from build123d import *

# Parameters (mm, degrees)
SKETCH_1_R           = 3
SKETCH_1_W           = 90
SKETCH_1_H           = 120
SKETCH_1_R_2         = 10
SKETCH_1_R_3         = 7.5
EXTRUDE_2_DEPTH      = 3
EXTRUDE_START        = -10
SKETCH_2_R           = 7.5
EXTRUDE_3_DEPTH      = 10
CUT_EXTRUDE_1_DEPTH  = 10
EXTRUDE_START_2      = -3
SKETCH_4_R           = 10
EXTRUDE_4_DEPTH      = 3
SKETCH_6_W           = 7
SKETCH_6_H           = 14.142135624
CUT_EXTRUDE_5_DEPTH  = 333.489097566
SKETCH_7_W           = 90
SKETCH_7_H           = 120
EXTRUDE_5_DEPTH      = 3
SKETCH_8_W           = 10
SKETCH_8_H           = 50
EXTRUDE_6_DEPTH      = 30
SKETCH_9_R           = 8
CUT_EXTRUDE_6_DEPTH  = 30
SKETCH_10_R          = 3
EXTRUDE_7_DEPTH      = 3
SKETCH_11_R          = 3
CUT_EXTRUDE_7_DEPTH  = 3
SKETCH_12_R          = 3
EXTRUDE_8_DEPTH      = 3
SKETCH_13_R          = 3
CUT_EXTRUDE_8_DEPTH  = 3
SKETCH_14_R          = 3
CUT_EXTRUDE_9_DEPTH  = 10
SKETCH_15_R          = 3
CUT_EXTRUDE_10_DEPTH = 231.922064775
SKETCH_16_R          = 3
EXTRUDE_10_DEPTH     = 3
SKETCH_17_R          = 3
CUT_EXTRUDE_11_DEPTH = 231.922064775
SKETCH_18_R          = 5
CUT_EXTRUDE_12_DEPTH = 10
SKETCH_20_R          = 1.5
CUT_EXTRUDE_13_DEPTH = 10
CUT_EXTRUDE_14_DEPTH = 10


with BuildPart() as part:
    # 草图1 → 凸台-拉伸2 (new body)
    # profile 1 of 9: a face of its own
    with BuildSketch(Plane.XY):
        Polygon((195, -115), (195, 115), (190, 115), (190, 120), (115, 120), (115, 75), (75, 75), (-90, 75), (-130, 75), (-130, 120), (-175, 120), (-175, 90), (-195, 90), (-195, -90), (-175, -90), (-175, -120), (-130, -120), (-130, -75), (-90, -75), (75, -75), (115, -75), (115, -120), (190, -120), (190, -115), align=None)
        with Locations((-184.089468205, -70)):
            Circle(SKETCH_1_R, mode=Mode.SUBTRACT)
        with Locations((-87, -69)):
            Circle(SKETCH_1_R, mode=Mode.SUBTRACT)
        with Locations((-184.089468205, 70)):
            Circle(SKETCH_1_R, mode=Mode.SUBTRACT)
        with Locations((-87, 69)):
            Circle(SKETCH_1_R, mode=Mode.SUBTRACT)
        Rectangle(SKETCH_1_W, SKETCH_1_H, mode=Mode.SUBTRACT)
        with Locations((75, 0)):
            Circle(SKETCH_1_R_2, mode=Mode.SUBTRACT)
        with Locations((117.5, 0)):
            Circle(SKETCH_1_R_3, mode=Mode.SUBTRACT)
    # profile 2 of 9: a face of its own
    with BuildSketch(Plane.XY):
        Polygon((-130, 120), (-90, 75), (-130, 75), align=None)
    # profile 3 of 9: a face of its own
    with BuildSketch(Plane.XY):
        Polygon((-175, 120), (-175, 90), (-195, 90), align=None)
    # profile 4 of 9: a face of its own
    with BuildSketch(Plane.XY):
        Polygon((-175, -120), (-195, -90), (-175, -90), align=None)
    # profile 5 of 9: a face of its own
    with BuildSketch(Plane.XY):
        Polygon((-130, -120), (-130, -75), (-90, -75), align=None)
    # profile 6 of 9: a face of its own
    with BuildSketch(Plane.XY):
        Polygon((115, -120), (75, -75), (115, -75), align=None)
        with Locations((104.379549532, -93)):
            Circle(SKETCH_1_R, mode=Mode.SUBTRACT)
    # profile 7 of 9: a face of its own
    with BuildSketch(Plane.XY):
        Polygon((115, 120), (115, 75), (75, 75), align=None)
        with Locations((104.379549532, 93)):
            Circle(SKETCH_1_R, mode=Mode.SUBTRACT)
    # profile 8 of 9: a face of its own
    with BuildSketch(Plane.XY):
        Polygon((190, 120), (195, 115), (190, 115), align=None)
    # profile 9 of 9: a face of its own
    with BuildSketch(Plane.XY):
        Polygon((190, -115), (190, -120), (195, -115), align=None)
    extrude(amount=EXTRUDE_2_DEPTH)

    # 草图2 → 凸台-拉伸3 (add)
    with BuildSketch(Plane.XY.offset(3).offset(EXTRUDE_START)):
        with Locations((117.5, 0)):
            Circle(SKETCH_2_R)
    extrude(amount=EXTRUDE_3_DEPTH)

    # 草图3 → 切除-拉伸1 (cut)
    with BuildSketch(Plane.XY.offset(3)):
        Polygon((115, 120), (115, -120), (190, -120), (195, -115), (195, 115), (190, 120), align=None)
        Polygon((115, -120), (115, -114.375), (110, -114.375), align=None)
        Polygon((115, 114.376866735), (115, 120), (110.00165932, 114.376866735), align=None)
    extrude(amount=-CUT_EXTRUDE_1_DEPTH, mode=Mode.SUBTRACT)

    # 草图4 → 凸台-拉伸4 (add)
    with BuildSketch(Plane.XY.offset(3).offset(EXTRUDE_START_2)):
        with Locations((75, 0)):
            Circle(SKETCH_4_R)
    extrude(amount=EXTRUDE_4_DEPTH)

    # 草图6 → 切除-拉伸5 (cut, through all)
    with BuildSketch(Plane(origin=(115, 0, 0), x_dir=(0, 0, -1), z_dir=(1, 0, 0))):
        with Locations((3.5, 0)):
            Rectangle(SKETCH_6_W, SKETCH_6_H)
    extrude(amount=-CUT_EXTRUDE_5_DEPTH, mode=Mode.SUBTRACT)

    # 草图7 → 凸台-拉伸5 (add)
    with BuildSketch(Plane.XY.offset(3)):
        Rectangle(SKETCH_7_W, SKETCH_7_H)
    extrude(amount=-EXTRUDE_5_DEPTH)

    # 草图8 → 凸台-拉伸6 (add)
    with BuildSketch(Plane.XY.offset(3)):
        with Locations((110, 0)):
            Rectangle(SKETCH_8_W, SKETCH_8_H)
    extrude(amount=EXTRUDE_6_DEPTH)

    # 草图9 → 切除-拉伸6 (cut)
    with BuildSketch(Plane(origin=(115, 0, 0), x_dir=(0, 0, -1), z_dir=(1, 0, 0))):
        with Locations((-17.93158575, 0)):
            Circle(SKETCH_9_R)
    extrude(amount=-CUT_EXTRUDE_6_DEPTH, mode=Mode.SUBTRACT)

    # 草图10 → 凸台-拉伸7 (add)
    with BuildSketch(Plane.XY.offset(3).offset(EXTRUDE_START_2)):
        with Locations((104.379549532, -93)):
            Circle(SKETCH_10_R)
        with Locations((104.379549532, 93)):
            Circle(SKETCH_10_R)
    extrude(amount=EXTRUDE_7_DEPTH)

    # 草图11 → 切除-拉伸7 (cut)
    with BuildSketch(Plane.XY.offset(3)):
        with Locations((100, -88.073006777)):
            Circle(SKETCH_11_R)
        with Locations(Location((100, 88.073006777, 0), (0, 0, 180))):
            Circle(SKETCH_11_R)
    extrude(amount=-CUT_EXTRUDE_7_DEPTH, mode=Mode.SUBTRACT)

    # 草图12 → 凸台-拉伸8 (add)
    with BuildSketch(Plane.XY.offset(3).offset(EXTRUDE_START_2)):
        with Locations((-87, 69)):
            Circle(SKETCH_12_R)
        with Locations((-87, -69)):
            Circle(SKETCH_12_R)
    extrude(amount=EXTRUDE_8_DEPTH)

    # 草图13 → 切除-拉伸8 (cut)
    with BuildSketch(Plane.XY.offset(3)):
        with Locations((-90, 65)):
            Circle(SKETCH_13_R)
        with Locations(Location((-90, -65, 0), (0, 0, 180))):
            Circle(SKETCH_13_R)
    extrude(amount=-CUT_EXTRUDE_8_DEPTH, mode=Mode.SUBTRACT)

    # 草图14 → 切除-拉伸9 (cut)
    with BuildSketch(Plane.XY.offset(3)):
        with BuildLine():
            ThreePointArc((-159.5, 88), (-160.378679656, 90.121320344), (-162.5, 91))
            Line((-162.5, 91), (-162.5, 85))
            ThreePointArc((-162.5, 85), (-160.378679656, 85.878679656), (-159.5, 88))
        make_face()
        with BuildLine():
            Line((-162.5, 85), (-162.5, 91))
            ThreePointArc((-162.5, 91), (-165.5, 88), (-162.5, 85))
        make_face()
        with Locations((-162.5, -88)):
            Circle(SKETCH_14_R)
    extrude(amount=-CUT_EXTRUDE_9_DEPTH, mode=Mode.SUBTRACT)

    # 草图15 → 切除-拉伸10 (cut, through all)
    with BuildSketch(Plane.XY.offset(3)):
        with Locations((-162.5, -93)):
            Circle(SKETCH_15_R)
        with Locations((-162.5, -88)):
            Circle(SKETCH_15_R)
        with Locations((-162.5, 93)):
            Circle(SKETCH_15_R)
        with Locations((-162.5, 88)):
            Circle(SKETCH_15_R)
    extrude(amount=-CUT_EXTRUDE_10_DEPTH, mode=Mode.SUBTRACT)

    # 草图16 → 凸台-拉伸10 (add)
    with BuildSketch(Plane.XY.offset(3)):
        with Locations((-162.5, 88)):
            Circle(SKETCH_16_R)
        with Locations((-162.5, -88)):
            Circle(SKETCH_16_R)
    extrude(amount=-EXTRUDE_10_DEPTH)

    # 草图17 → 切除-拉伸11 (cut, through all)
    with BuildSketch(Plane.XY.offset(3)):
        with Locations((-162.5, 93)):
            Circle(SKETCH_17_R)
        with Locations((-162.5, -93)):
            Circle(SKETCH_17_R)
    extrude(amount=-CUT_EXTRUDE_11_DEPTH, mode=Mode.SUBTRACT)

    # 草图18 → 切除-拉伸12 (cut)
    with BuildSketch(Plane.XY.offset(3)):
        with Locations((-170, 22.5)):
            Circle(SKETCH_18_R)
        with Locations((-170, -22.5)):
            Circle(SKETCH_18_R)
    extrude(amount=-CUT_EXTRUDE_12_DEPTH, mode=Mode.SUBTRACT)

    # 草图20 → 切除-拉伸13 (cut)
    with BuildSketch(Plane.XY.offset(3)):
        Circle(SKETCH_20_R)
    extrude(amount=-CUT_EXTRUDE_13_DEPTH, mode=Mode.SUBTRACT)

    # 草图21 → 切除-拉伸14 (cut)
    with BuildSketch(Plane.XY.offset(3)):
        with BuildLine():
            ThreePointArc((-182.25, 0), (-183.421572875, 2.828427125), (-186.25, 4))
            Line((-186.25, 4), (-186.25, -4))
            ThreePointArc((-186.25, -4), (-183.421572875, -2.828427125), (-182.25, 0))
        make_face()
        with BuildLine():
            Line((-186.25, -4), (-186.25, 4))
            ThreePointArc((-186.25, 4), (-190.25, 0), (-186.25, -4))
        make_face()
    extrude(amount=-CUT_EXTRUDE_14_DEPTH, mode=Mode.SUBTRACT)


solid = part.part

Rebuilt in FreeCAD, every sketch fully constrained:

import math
import FreeCAD as App
import Part
import Sketcher

V = App.Vector

doc = App.newDocument("Part")
body = doc.addObject("PartDesign::Body", "Body")

sketch1 = doc.addObject("Sketcher::SketchObject", "Sketch")
body.addObject(sketch1)
sketch1.AttachmentSupport = (doc.XY_Plane, [""])
sketch1.MapMode = "FlatFace"
sketch1.addGeometry([
    Part.LineSegment(V(195, -115, 0), V(195, 115, 0)),
    Part.LineSegment(V(195, 115, 0), V(190, 120, 0)),
    Part.LineSegment(V(190, 120, 0), V(115, 120, 0)),
    Part.LineSegment(V(115, 120, 0), V(75, 75, 0)),
    Part.LineSegment(V(75, 75, 0), V(-90, 75, 0)),
    Part.LineSegment(V(-90, 75, 0), V(-130, 120, 0)),
    Part.LineSegment(V(-130, 120, 0), V(-175, 120, 0)),
    Part.LineSegment(V(-175, 120, 0), V(-195, 90, 0)),
    Part.LineSegment(V(-195, 90, 0), V(-195, -90, 0)),
    Part.LineSegment(V(-195, -90, 0), V(-175, -120, 0)),
    Part.LineSegment(V(-175, -120, 0), V(-130, -120, 0)),
    Part.LineSegment(V(-130, -120, 0), V(-90, -75, 0)),
    Part.LineSegment(V(-90, -75, 0), V(75, -75, 0)),
    Part.LineSegment(V(75, -75, 0), V(115, -120, 0)),
    Part.LineSegment(V(115, -120, 0), V(190, -120, 0)),
    Part.LineSegment(V(190, -120, 0), V(195, -115, 0)),
    Part.Circle(V(-184.1, -70, 0), V(0, 0, 1), 3),
    Part.Circle(V(-87, -69, 0), V(0, 0, 1), 3),
    Part.Circle(V(-184.1, 70, 0), V(0, 0, 1), 3),
    Part.Circle(V(-87, 69, 0), V(0, 0, 1), 3),
    Part.LineSegment(V(45, -60, 0), V(-45, -60, 0)),
    Part.LineSegment(V(-45, -60, 0), V(-45, 60, 0)),
    Part.LineSegment(V(-45, 60, 0), V(45, 60, 0)),
    Part.LineSegment(V(45, 60, 0), V(45, -60, 0)),
    Part.Circle(V(75, 0, 0), V(0, 0, 1), 10),
    Part.Circle(V(117.5, 0, 0), V(0, 0, 1), 7.5),
    Part.Circle(V(104.4, -93, 0), V(0, 0, 1), 3),
    Part.Circle(V(104.4, 93, 0), V(0, 0, 1), 3),
], False)
sketch1.addConstraint([
    Sketcher.Constraint("Coincident", 0, 2, 1, 1),
    Sketcher.Constraint("Coincident", 1, 2, 2, 1),
    Sketcher.Constraint("Coincident", 2, 2, 3, 1),
    Sketcher.Constraint("Coincident", 3, 2, 4, 1),
    Sketcher.Constraint("Coincident", 4, 2, 5, 1),
    Sketcher.Constraint("Coincident", 5, 2, 6, 1),
    Sketcher.Constraint("Coincident", 6, 2, 7, 1),
    Sketcher.Constraint("Coincident", 7, 2, 8, 1),
    Sketcher.Constraint("Coincident", 8, 2, 9, 1),
    Sketcher.Constraint("Coincident", 9, 2, 10, 1),
    Sketcher.Constraint("Coincident", 10, 2, 11, 1),
    Sketcher.Constraint("Coincident", 11, 2, 12, 1),
    Sketcher.Constraint("Coincident", 12, 2, 13, 1),
    Sketcher.Constraint("Coincident", 13, 2, 14, 1),
    Sketcher.Constraint("Coincident", 14, 2, 15, 1),
    Sketcher.Constraint("Coincident", 15, 2, 0, 1),
    Sketcher.Constraint("Coincident", 20, 2, 21, 1),
    Sketcher.Constraint("Coincident", 21, 2, 22, 1),
    Sketcher.Constraint("Coincident", 22, 2, 23, 1),
    Sketcher.Constraint("Coincident", 23, 2, 20, 1),
    Sketcher.Constraint("Vertical", 0),
    Sketcher.Constraint("Horizontal", 2),
    Sketcher.Constraint("Horizontal", 4),
    Sketcher.Constraint("Horizontal", 6),
    Sketcher.Constraint("Vertical", 8),
    Sketcher.Constraint("Horizontal", 10),
    Sketcher.Constraint("Horizontal", 12),
    Sketcher.Constraint("Horizontal", 14),
    Sketcher.Constraint("Horizontal", 20),
    Sketcher.Constraint("Vertical", 21),
    Sketcher.Constraint("Horizontal", 22),
    Sketcher.Constraint("Vertical", 23),
    Sketcher.Constraint("Equal", 16, 17),
    Sketcher.Constraint("Equal", 17, 18),
    Sketcher.Constraint("Equal", 18, 19),
    Sketcher.Constraint("Equal", 19, 26),
    Sketcher.Constraint("Equal", 26, 27),
    Sketcher.Constraint("Symmetric", 20, 2, 22, 2, -1, 1),
    Sketcher.Constraint("Symmetric", 16, 3, 18, 3, -1),
    Sketcher.Constraint("Symmetric", 17, 3, 19, 3, -1),
    Sketcher.Constraint("Symmetric", 26, 3, 27, 3, -1),
    Sketcher.Constraint("Symmetric", 6, 2, 9, 2, -1),
    Sketcher.Constraint("Symmetric", 4, 2, 11, 2, -1),
    Sketcher.Constraint("Symmetric", 2, 2, 13, 2, -1),
    Sketcher.Constraint("PointOnObject", 24, 3, -1),
    Sketcher.Constraint("PointOnObject", 25, 3, -1),
    Sketcher.Constraint("Parallel", 3, 11),
    Sketcher.Constraint("Parallel", 5, 13),
    Sketcher.Constraint("Perpendicular", 1, 15),
    Sketcher.Constraint("Horizontal", 2, 2, 5, 2),
    Sketcher.Constraint("Vertical", 24, 3, 3, 2),
    Sketcher.Constraint("Vertical", 5, 2, 10, 2),
    Sketcher.Constraint("Vertical", 1, 2, 14, 2),
    Sketcher.Constraint("Equal", 7, 9),
    Sketcher.Constraint("Equal", 1, 15),
    Sketcher.Constraint("Diameter", 16, 6.0),
    Sketcher.Constraint("Diameter", 24, 20.0),
    Sketcher.Constraint("Diameter", 25, 15.0),
    Sketcher.Constraint("DistanceX", 2, 2, 2, 1, 75.0),
    Sketcher.Constraint("DistanceX", 4, 2, 4, 1, 165.0),
    Sketcher.Constraint("DistanceX", 6, 2, 6, 1, 45.0),
    Sketcher.Constraint("DistanceX", 20, 2, 20, 1, 90.0),
    Sketcher.Constraint("DistanceY", 0, 1, 0, 2, 230.0),
    Sketcher.Constraint("DistanceY", 8, 2, 8, 1, 180.0),
    Sketcher.Constraint("DistanceY", 21, 1, 21, 2, 120.0),
    Sketcher.Constraint("DistanceY", 16, 3, -1, 1, 70.0),
    Sketcher.Constraint("DistanceX", 17, 3, -1, 1, 87.0),
    Sketcher.Constraint("DistanceY", 17, 3, -1, 1, 69.0),
    Sketcher.Constraint("DistanceX", -1, 1, 24, 3, 75.0),
    Sketcher.Constraint("DistanceY", 26, 3, -1, 1, 93.0),
    Sketcher.Constraint("DistanceX", -1, 1, 0, 2, 195.0),
    Sketcher.Constraint("DistanceX", -1, 1, 1, 2, 190.0),
    Sketcher.Constraint("DistanceY", -1, 1, 3, 2, 75.0),
    Sketcher.Constraint("DistanceX", 7, 2, -1, 1, 195.0),
    Sketcher.Constraint("DistanceX", -1, 1, 25, 3, 117.5),
    Sketcher.Constraint("DistanceX", 16, 3, -1, 1, 184.089468),
    Sketcher.Constraint("DistanceX", -1, 1, 26, 3, 104.37955),
])
pad1 = doc.addObject("PartDesign::Pad", "Pad")
body.addObject(pad1)
pad1.Profile = sketch1
pad1.Length = 3

sketch2 = doc.addObject("Sketcher::SketchObject", "Sketch001")
body.addObject(sketch2)
sketch2.AttachmentSupport = (doc.XY_Plane, [""])
sketch2.MapMode = "FlatFace"
sketch2.AttachmentOffset = App.Placement(V(0, 0, -7), App.Rotation())
sketch2.addGeometry(Part.Circle(V(118, 0, 0), V(0, 0, 1), 8), False)
sketch2.addConstraint([
    Sketcher.Constraint("PointOnObject", 0, 3, -1),
    Sketcher.Constraint("Diameter", 0, 15.0),
    Sketcher.Constraint("DistanceX", -1, 1, 0, 3, 117.5),
])
pad2 = doc.addObject("PartDesign::Pad", "Pad001")
body.addObject(pad2)
pad2.Profile = sketch2
pad2.Length = 10

sketch3 = doc.addObject("Sketcher::SketchObject", "Sketch002")
body.addObject(sketch3)
sketch3.AttachmentSupport = (doc.XY_Plane, [""])
sketch3.MapMode = "FlatFace"
sketch3.AttachmentOffset = App.Placement(V(0, 0, 3), App.Rotation())
sketch3.addGeometry([
    Part.LineSegment(V(115, 114.4, 0), V(115, -114.4, 0)),
    Part.LineSegment(V(115, -114.4, 0), V(110, -114.4, 0)),
    Part.LineSegment(V(110, -114.4, 0), V(115, -120, 0)),
    Part.LineSegment(V(115, -120, 0), V(190, -120, 0)),
    Part.LineSegment(V(190, -120, 0), V(195, -115, 0)),
    Part.LineSegment(V(195, -115, 0), V(195, 115, 0)),
    Part.LineSegment(V(195, 115, 0), V(190, 120, 0)),
    Part.LineSegment(V(190, 120, 0), V(115, 120, 0)),
    Part.LineSegment(V(115, 120, 0), V(110, 114.4, 0)),
    Part.LineSegment(V(110, 114.4, 0), V(115, 114.4, 0)),
], False)
sketch3.addConstraint([
    Sketcher.Constraint("Coincident", 0, 2, 1, 1),
    Sketcher.Constraint("Coincident", 1, 2, 2, 1),
    Sketcher.Constraint("Coincident", 2, 2, 3, 1),
    Sketcher.Constraint("Coincident", 3, 2, 4, 1),
    Sketcher.Constraint("Coincident", 4, 2, 5, 1),
    Sketcher.Constraint("Coincident", 5, 2, 6, 1),
    Sketcher.Constraint("Coincident", 6, 2, 7, 1),
    Sketcher.Constraint("Coincident", 7, 2, 8, 1),
    Sketcher.Constraint("Coincident", 8, 2, 9, 1),
    Sketcher.Constraint("Coincident", 9, 2, 0, 1),
    Sketcher.Constraint("Vertical", 0),
    Sketcher.Constraint("Horizontal", 1),
    Sketcher.Constraint("Horizontal", 3),
    Sketcher.Constraint("Vertical", 5),
    Sketcher.Constraint("Horizontal", 7),
    Sketcher.Constraint("Horizontal", 9),
    Sketcher.Constraint("Symmetric", 3, 2, 6, 2, -1),
    Sketcher.Constraint("Perpendicular", 4, 6),
    Sketcher.Constraint("Vertical", 0, 2, 2, 2),
    Sketcher.Constraint("Vertical", 2, 2, 7, 2),
    Sketcher.Constraint("Equal", 4, 6),
    Sketcher.Constraint("DistanceX", 1, 2, 1, 1, 5.0),
    Sketcher.Constraint("DistanceX", 3, 1, 3, 2, 75.0),
    Sketcher.Constraint("DistanceY", 5, 1, 5, 2, 230.0),
    Sketcher.Constraint("DistanceX", -1, 1, 0, 2, 115.0),
    Sketcher.Constraint("DistanceY", 2, 2, -1, 1, 120.0),
    Sketcher.Constraint("DistanceY", 0, 2, -1, 1, 114.375),
    Sketcher.Constraint("Distance", 8, 7.523499),
    Sketcher.Constraint("DistanceX", 9, 1, 9, 2, 4.998341),
])
pocket1 = doc.addObject("PartDesign::Pocket", "Pocket")
body.addObject(pocket1)
pocket1.Profile = sketch3
pocket1.Length = 10

sketch4 = doc.addObject("Sketcher::SketchObject", "Sketch003")
body.addObject(sketch4)
sketch4.AttachmentSupport = (doc.XY_Plane, [""])
sketch4.MapMode = "FlatFace"
sketch4.addGeometry(Part.Circle(V(75, 0, 0), V(0, 0, 1), 10), False)
sketch4.addConstraint([
    Sketcher.Constraint("PointOnObject", 0, 3, -1),
    Sketcher.Constraint("Diameter", 0, 20.0),
    Sketcher.Constraint("DistanceX", -1, 1, 0, 3, 75.0),
])
pad3 = doc.addObject("PartDesign::Pad", "Pad002")
body.addObject(pad3)
pad3.Profile = sketch4
pad3.Length = 3

sketch5 = doc.addObject("Sketcher::SketchObject", "Sketch004")
body.addObject(sketch5)
sketch5.AttachmentSupport = (doc.YZ_Plane, [""])
sketch5.MapMode = "FlatFace"
sketch5.AttachmentOffset = App.Placement(V(0, 0, 115), App.Rotation())
sketch5.addGeometry([
    Part.LineSegment(V(7, 0, 0), V(-7, 0, 0)),
    Part.LineSegment(V(-7, 0, 0), V(-7, -7, 0)),
    Part.LineSegment(V(-7, -7, 0), V(7, -7, 0)),
    Part.LineSegment(V(7, -7, 0), V(7, 0, 0)),
], False)
sketch5.addConstraint([
    Sketcher.Constraint("Coincident", 0, 2, 1, 1),
    Sketcher.Constraint("Coincident", 1, 2, 2, 1),
    Sketcher.Constraint("Coincident", 2, 2, 3, 1),
    Sketcher.Constraint("Coincident", 3, 2, 0, 1),
    Sketcher.Constraint("Horizontal", 0),
    Sketcher.Constraint("Vertical", 1),
    Sketcher.Constraint("Horizontal", 2),
    Sketcher.Constraint("Vertical", 3),
    Sketcher.Constraint("Symmetric", 0, 2, 3, 2, -1, 1),
    Sketcher.Constraint("DistanceY", 1, 2, 1, 1, 7.0),
    Sketcher.Constraint("DistanceX", 0, 2, 0, 1, 14.142136),
])
pocket2 = doc.addObject("PartDesign::Pocket", "Pocket001")
body.addObject(pocket2)
pocket2.Profile = sketch5
pocket2.Type = "ThroughAll"

sketch6 = doc.addObject("Sketcher::SketchObject", "Sketch005")
body.addObject(sketch6)
sketch6.AttachmentSupport = (doc.XY_Plane, [""])
sketch6.MapMode = "FlatFace"
sketch6.AttachmentOffset = App.Placement(V(0, 0, 3), App.Rotation())
sketch6.addGeometry([
    Part.LineSegment(V(-45, 60, 0), V(-45, -60, 0)),
    Part.LineSegment(V(-45, -60, 0), V(45, -60, 0)),
    Part.LineSegment(V(45, -60, 0), V(45, 60, 0)),
    Part.LineSegment(V(45, 60, 0), V(-45, 60, 0)),
], False)
sketch6.addConstraint([
    Sketcher.Constraint("Coincident", 0, 2, 1, 1),
    Sketcher.Constraint("Coincident", 1, 2, 2, 1),
    Sketcher.Constraint("Coincident", 2, 2, 3, 1),
    Sketcher.Constraint("Coincident", 3, 2, 0, 1),
    Sketcher.Constraint("Vertical", 0),
    Sketcher.Constraint("Horizontal", 1),
    Sketcher.Constraint("Vertical", 2),
    Sketcher.Constraint("Horizontal", 3),
    Sketcher.Constraint("Symmetric", 0, 2, 2, 2, -1, 1),
    Sketcher.Constraint("DistanceX", 1, 1, 1, 2, 90.0),
    Sketcher.Constraint("DistanceY", 0, 2, 0, 1, 120.0),
])
pad4 = doc.addObject("PartDesign::Pad", "Pad003")
body.addObject(pad4)
pad4.Profile = sketch6
pad4.Length = 3
pad4.Reversed = True

sketch7 = doc.addObject("Sketcher::SketchObject", "Sketch006")
body.addObject(sketch7)
sketch7.AttachmentSupport = (doc.XY_Plane, [""])
sketch7.MapMode = "FlatFace"
sketch7.AttachmentOffset = App.Placement(V(0, 0, 3), App.Rotation())
sketch7.addGeometry([
    Part.LineSegment(V(105, 25, 0), V(105, -25, 0)),
    Part.LineSegment(V(105, -25, 0), V(115, -25, 0)),
    Part.LineSegment(V(115, -25, 0), V(115, 25, 0)),
    Part.LineSegment(V(115, 25, 0), V(105, 25, 0)),
], False)
sketch7.addConstraint([
    Sketcher.Constraint("Coincident", 0, 2, 1, 1),
    Sketcher.Constraint("Coincident", 1, 2, 2, 1),
    Sketcher.Constraint("Coincident", 2, 2, 3, 1),
    Sketcher.Constraint("Coincident", 3, 2, 0, 1),
    Sketcher.Constraint("Vertical", 0),
    Sketcher.Constraint("Horizontal", 1),
    Sketcher.Constraint("Vertical", 2),
    Sketcher.Constraint("Horizontal", 3),
    Sketcher.Constraint("DistanceX", 1, 1, 1, 2, 10.0),
    Sketcher.Constraint("DistanceY", 0, 2, 0, 1, 50.0),
    Sketcher.Constraint("DistanceX", -1, 1, 0, 2, 105.0),
    Sketcher.Constraint("DistanceY", 0, 2, -1, 1, 25.0),
])
pad5 = doc.addObject("PartDesign::Pad", "Pad004")
body.addObject(pad5)
pad5.Profile = sketch7
pad5.Length = 30

sketch8 = doc.addObject("Sketcher::SketchObject", "Sketch007")
body.addObject(sketch8)
sketch8.AttachmentSupport = (doc.YZ_Plane, [""])
sketch8.MapMode = "FlatFace"
sketch8.AttachmentOffset = App.Placement(V(0, 0, 115), App.Rotation())
sketch8.addGeometry(Part.Circle(V(0, 18, 0), V(0, 0, 1), 8), False)
sketch8.addConstraint([
    Sketcher.Constraint("PointOnObject", 0, 3, -2),
    Sketcher.Constraint("Diameter", 0, 16.0),
    Sketcher.Constraint("DistanceY", -1, 1, 0, 3, 17.931586),
])
pocket3 = doc.addObject("PartDesign::Pocket", "Pocket002")
body.addObject(pocket3)
pocket3.Profile = sketch8
pocket3.Length = 30

sketch9 = doc.addObject("Sketcher::SketchObject", "Sketch008")
body.addObject(sketch9)
sketch9.AttachmentSupport = (doc.XY_Plane, [""])
sketch9.MapMode = "FlatFace"
sketch9.addGeometry([
    Part.Circle(V(104.4, -93, 0), V(0, 0, 1), 3),
    Part.Circle(V(104.4, 93, 0), V(0, 0, 1), 3),
], False)
sketch9.addConstraint([
    Sketcher.Constraint("Equal", 0, 1),
    Sketcher.Constraint("Symmetric", 0, 3, 1, 3, -1),
    Sketcher.Constraint("Diameter", 0, 6.0),
    Sketcher.Constraint("DistanceY", 0, 3, -1, 1, 93.0),
    Sketcher.Constraint("DistanceX", -1, 1, 0, 3, 104.37955),
])
pad6 = doc.addObject("PartDesign::Pad", "Pad005")
body.addObject(pad6)
pad6.Profile = sketch9
pad6.Length = 3

sketch10 = doc.addObject("Sketcher::SketchObject", "Sketch009")
body.addObject(sketch10)
sketch10.AttachmentSupport = (doc.XY_Plane, [""])
sketch10.MapMode = "FlatFace"
sketch10.AttachmentOffset = App.Placement(V(0, 0, 3), App.Rotation())
sketch10.addGeometry([
    Part.Circle(V(100, -88.1, 0), V(0, 0, 1), 3),
    Part.Circle(V(100, 88.1, 0), V(0, 0, 1), 3),
], False)
sketch10.addConstraint([
    Sketcher.Constraint("Equal", 0, 1),
    Sketcher.Constraint("Symmetric", 0, 3, 1, 3, -1),
    Sketcher.Constraint("Diameter", 0, 6.0),
    Sketcher.Constraint("DistanceX", -1, 1, 0, 3, 100.0),
    Sketcher.Constraint("DistanceY", 0, 3, -1, 1, 88.073007),
])
pocket4 = doc.addObject("PartDesign::Pocket", "Pocket003")
body.addObject(pocket4)
pocket4.Profile = sketch10
pocket4.Length = 3

sketch11 = doc.addObject("Sketcher::SketchObject", "Sketch010")
body.addObject(sketch11)
sketch11.AttachmentSupport = (doc.XY_Plane, [""])
sketch11.MapMode = "FlatFace"
sketch11.addGeometry([
    Part.Circle(V(-87, 69, 0), V(0, 0, 1), 3),
    Part.Circle(V(-87, -69, 0), V(0, 0, 1), 3),
], False)
sketch11.addConstraint([
    Sketcher.Constraint("Equal", 0, 1),
    Sketcher.Constraint("Symmetric", 0, 3, 1, 3, -1),
    Sketcher.Constraint("Diameter", 0, 6.0),
    Sketcher.Constraint("DistanceX", 0, 3, -1, 1, 87.0),
    Sketcher.Constraint("DistanceY", -1, 1, 0, 3, 69.0),
])
pad7 = doc.addObject("PartDesign::Pad", "Pad006")
body.addObject(pad7)
pad7.Profile = sketch11
pad7.Length = 3

sketch12 = doc.addObject("Sketcher::SketchObject", "Sketch011")
body.addObject(sketch12)
sketch12.AttachmentSupport = (doc.XY_Plane, [""])
sketch12.MapMode = "FlatFace"
sketch12.AttachmentOffset = App.Placement(V(0, 0, 3), App.Rotation())
sketch12.addGeometry([
    Part.Circle(V(-90, 65, 0), V(0, 0, 1), 3),
    Part.Circle(V(-90, -65, 0), V(0, 0, 1), 3),
], False)
sketch12.addConstraint([
    Sketcher.Constraint("Equal", 0, 1),
    Sketcher.Constraint("Symmetric", 0, 3, 1, 3, -1),
    Sketcher.Constraint("Diameter", 0, 6.0),
    Sketcher.Constraint("DistanceX", 0, 3, -1, 1, 90.0),
    Sketcher.Constraint("DistanceY", -1, 1, 0, 3, 65.0),
])
pocket5 = doc.addObject("PartDesign::Pocket", "Pocket004")
body.addObject(pocket5)
pocket5.Profile = sketch12
pocket5.Length = 3

sketch13 = doc.addObject("Sketcher::SketchObject", "Sketch012")
body.addObject(sketch13)
sketch13.AttachmentSupport = (doc.XY_Plane, [""])
sketch13.MapMode = "FlatFace"
sketch13.AttachmentOffset = App.Placement(V(0, 0, 3), App.Rotation())
sketch13.addGeometry([
    Part.ArcOfCircle(Part.Circle(V(-162.5, 88, 0), V(0, 0, 1), 3), math.radians(0), math.radians(90)),
    Part.ArcOfCircle(Part.Circle(V(-162.5, 88, 0), V(0, 0, 1), 3), math.radians(90), math.radians(270)),
    Part.ArcOfCircle(Part.Circle(V(-162.5, 88, 0), V(0, 0, 1), 3), math.radians(-90), math.radians(0)),
    Part.Circle(V(-162.5, -88, 0), V(0, 0, 1), 3),
], False)
sketch13.addConstraint([
    Sketcher.Constraint("Tangent", 0, 2, 1, 1),
    Sketcher.Constraint("Tangent", 1, 2, 2, 1),
    Sketcher.Constraint("Tangent", 2, 2, 0, 1),
    Sketcher.Constraint("Equal", 2, 3),
    Sketcher.Constraint("Symmetric", 0, 3, 3, 3, -1),
    Sketcher.Constraint("Horizontal", 1, 3, 2, 2),
    Sketcher.Constraint("Vertical", 3, 3, 0, 2),
    Sketcher.Constraint("Vertical", 0, 2, 1, 2),
    Sketcher.Constraint("Diameter", 3, 6.0),
    Sketcher.Constraint("DistanceY", -1, 1, 0, 3, 88.0),
    Sketcher.Constraint("DistanceX", 0, 3, -1, 1, 162.5),
])
pocket6 = doc.addObject("PartDesign::Pocket", "Pocket005")
body.addObject(pocket6)
pocket6.Profile = sketch13
pocket6.Length = 10

sketch14 = doc.addObject("Sketcher::SketchObject", "Sketch013")
body.addObject(sketch14)
sketch14.AttachmentSupport = (doc.XY_Plane, [""])
sketch14.MapMode = "FlatFace"
sketch14.AttachmentOffset = App.Placement(V(0, 0, 3), App.Rotation())
sketch14.addGeometry([
    Part.ArcOfCircle(Part.Circle(V(-162.5, -93, 0), V(0, 0, 1), 3), math.radians(124), math.radians(416)),
    Part.ArcOfCircle(Part.Circle(V(-162.5, -88, 0), V(0, 0, 1), 3), math.radians(-56), math.radians(236)),
    Part.ArcOfCircle(Part.Circle(V(-162.5, 93, 0), V(0, 0, 1), 3), math.radians(-56), math.radians(236)),
    Part.ArcOfCircle(Part.Circle(V(-162.5, 88, 0), V(0, 0, 1), 3), math.radians(124), math.radians(416)),
], False)
sketch14.addConstraint([
    Sketcher.Constraint("Coincident", 0, 1, 1, 2),
    Sketcher.Constraint("Coincident", 1, 1, 0, 2),
    Sketcher.Constraint("Coincident", 2, 1, 3, 2),
    Sketcher.Constraint("Coincident", 3, 1, 2, 2),
    Sketcher.Constraint("Equal", 0, 1),
    Sketcher.Constraint("Equal", 1, 2),
    Sketcher.Constraint("Equal", 2, 3),
    Sketcher.Constraint("Symmetric", 0, 3, 2, 3, -1),
    Sketcher.Constraint("Symmetric", 1, 3, 3, 3, -1),
    Sketcher.Constraint("Horizontal", 0, 1, 1, 1),
    Sketcher.Constraint("Radius", 0, 3.0),
    Sketcher.Constraint("DistanceY", 0, 3, -1, 1, 93.0),
    Sketcher.Constraint("DistanceY", 1, 3, -1, 1, 88.0),
    Sketcher.Constraint("DistanceX", 0, 3, -1, 1, 162.5),
])
pocket7 = doc.addObject("PartDesign::Pocket", "Pocket006")
body.addObject(pocket7)
pocket7.Profile = sketch14
pocket7.Type = "ThroughAll"

sketch15 = doc.addObject("Sketcher::SketchObject", "Sketch014")
body.addObject(sketch15)
sketch15.AttachmentSupport = (doc.XY_Plane, [""])
sketch15.MapMode = "FlatFace"
sketch15.AttachmentOffset = App.Placement(V(0, 0, 3), App.Rotation())
sketch15.addGeometry([
    Part.Circle(V(-162.5, 88, 0), V(0, 0, 1), 3),
    Part.Circle(V(-162.5, -88, 0), V(0, 0, 1), 3),
], False)
sketch15.addConstraint([
    Sketcher.Constraint("Equal", 0, 1),
    Sketcher.Constraint("Symmetric", 0, 3, 1, 3, -1),
    Sketcher.Constraint("Diameter", 0, 6.0),
    Sketcher.Constraint("DistanceY", -1, 1, 0, 3, 88.0),
    Sketcher.Constraint("DistanceX", 0, 3, -1, 1, 162.5),
])
pad8 = doc.addObject("PartDesign::Pad", "Pad007")
body.addObject(pad8)
pad8.Profile = sketch15
pad8.Length = 3
pad8.Reversed = True

sketch16 = doc.addObject("Sketcher::SketchObject", "Sketch015")
body.addObject(sketch16)
sketch16.AttachmentSupport = (doc.XY_Plane, [""])
sketch16.MapMode = "FlatFace"
sketch16.AttachmentOffset = App.Placement(V(0, 0, 3), App.Rotation())
sketch16.addGeometry([
    Part.Circle(V(-162.5, 93, 0), V(0, 0, 1), 3),
    Part.Circle(V(-162.5, -93, 0), V(0, 0, 1), 3),
], False)
sketch16.addConstraint([
    Sketcher.Constraint("Equal", 0, 1),
    Sketcher.Constraint("Symmetric", 0, 3, 1, 3, -1),
    Sketcher.Constraint("Diameter", 0, 6.0),
    Sketcher.Constraint("DistanceY", -1, 1, 0, 3, 93.0),
    Sketcher.Constraint("DistanceX", 0, 3, -1, 1, 162.5),
])
pocket8 = doc.addObject("PartDesign::Pocket", "Pocket007")
body.addObject(pocket8)
pocket8.Profile = sketch16
pocket8.Type = "ThroughAll"

sketch17 = doc.addObject("Sketcher::SketchObject", "Sketch016")
body.addObject(sketch17)
sketch17.AttachmentSupport = (doc.XY_Plane, [""])
sketch17.MapMode = "FlatFace"
sketch17.AttachmentOffset = App.Placement(V(0, 0, 3), App.Rotation())
sketch17.addGeometry([
    Part.Circle(V(-170, 22, 0), V(0, 0, 1), 5),
    Part.Circle(V(-170, -22, 0), V(0, 0, 1), 5),
], False)
sketch17.addConstraint([
    Sketcher.Constraint("Equal", 0, 1),
    Sketcher.Constraint("Symmetric", 0, 3, 1, 3, -1),
    Sketcher.Constraint("Diameter", 0, 10.0),
    Sketcher.Constraint("DistanceX", 0, 3, -1, 1, 170.0),
    Sketcher.Constraint("DistanceY", 1, 3, 0, 3, 45.0),
])
pocket9 = doc.addObject("PartDesign::Pocket", "Pocket008")
body.addObject(pocket9)
pocket9.Profile = sketch17
pocket9.Length = 10

sketch18 = doc.addObject("Sketcher::SketchObject", "Sketch017")
body.addObject(sketch18)
sketch18.AttachmentSupport = (doc.XY_Plane, [""])
sketch18.MapMode = "FlatFace"
sketch18.AttachmentOffset = App.Placement(V(0, 0, 3), App.Rotation())
sketch18.addGeometry(Part.Circle(V(0, 0, 0), V(0, 0, 1), 1.5), False)
sketch18.addConstraint([
    Sketcher.Constraint("Coincident", 0, 3, -1, 1),
    Sketcher.Constraint("Diameter", 0, 3.0),
])
pocket10 = doc.addObject("PartDesign::Pocket", "Pocket009")
body.addObject(pocket10)
pocket10.Profile = sketch18
pocket10.Length = 10

sketch19 = doc.addObject("Sketcher::SketchObject", "Sketch018")
body.addObject(sketch19)
sketch19.AttachmentSupport = (doc.XY_Plane, [""])
sketch19.MapMode = "FlatFace"
sketch19.AttachmentOffset = App.Placement(V(0, 0, 3), App.Rotation())
sketch19.addGeometry([
    Part.ArcOfCircle(Part.Circle(V(-186.2, 0, 0), V(0, 0, 1), 4), math.radians(0), math.radians(90)),
    Part.ArcOfCircle(Part.Circle(V(-186.2, 0, 0), V(0, 0, 1), 4), math.radians(90), math.radians(270)),
    Part.ArcOfCircle(Part.Circle(V(-186.2, 0, 0), V(0, 0, 1), 4), math.radians(-90), math.radians(0)),
], False)
sketch19.addConstraint([
    Sketcher.Constraint("Tangent", 0, 2, 1, 1),
    Sketcher.Constraint("Tangent", 1, 2, 2, 1),
    Sketcher.Constraint("Tangent", 2, 2, 0, 1),
    Sketcher.Constraint("Symmetric", 0, 2, 1, 2, -1),
    Sketcher.Constraint("PointOnObject", 2, 2, -1),
    Sketcher.Constraint("Vertical", 2, 3, 0, 2),
    Sketcher.Constraint("Radius", 0, 4.0),
    Sketcher.Constraint("DistanceX", 0, 3, -1, 1, 186.25),
])
pocket11 = doc.addObject("PartDesign::Pocket", "Pocket010")
body.addObject(pocket11)
pocket11.Profile = sketch19
pocket11.Length = 10

doc.recompute()
